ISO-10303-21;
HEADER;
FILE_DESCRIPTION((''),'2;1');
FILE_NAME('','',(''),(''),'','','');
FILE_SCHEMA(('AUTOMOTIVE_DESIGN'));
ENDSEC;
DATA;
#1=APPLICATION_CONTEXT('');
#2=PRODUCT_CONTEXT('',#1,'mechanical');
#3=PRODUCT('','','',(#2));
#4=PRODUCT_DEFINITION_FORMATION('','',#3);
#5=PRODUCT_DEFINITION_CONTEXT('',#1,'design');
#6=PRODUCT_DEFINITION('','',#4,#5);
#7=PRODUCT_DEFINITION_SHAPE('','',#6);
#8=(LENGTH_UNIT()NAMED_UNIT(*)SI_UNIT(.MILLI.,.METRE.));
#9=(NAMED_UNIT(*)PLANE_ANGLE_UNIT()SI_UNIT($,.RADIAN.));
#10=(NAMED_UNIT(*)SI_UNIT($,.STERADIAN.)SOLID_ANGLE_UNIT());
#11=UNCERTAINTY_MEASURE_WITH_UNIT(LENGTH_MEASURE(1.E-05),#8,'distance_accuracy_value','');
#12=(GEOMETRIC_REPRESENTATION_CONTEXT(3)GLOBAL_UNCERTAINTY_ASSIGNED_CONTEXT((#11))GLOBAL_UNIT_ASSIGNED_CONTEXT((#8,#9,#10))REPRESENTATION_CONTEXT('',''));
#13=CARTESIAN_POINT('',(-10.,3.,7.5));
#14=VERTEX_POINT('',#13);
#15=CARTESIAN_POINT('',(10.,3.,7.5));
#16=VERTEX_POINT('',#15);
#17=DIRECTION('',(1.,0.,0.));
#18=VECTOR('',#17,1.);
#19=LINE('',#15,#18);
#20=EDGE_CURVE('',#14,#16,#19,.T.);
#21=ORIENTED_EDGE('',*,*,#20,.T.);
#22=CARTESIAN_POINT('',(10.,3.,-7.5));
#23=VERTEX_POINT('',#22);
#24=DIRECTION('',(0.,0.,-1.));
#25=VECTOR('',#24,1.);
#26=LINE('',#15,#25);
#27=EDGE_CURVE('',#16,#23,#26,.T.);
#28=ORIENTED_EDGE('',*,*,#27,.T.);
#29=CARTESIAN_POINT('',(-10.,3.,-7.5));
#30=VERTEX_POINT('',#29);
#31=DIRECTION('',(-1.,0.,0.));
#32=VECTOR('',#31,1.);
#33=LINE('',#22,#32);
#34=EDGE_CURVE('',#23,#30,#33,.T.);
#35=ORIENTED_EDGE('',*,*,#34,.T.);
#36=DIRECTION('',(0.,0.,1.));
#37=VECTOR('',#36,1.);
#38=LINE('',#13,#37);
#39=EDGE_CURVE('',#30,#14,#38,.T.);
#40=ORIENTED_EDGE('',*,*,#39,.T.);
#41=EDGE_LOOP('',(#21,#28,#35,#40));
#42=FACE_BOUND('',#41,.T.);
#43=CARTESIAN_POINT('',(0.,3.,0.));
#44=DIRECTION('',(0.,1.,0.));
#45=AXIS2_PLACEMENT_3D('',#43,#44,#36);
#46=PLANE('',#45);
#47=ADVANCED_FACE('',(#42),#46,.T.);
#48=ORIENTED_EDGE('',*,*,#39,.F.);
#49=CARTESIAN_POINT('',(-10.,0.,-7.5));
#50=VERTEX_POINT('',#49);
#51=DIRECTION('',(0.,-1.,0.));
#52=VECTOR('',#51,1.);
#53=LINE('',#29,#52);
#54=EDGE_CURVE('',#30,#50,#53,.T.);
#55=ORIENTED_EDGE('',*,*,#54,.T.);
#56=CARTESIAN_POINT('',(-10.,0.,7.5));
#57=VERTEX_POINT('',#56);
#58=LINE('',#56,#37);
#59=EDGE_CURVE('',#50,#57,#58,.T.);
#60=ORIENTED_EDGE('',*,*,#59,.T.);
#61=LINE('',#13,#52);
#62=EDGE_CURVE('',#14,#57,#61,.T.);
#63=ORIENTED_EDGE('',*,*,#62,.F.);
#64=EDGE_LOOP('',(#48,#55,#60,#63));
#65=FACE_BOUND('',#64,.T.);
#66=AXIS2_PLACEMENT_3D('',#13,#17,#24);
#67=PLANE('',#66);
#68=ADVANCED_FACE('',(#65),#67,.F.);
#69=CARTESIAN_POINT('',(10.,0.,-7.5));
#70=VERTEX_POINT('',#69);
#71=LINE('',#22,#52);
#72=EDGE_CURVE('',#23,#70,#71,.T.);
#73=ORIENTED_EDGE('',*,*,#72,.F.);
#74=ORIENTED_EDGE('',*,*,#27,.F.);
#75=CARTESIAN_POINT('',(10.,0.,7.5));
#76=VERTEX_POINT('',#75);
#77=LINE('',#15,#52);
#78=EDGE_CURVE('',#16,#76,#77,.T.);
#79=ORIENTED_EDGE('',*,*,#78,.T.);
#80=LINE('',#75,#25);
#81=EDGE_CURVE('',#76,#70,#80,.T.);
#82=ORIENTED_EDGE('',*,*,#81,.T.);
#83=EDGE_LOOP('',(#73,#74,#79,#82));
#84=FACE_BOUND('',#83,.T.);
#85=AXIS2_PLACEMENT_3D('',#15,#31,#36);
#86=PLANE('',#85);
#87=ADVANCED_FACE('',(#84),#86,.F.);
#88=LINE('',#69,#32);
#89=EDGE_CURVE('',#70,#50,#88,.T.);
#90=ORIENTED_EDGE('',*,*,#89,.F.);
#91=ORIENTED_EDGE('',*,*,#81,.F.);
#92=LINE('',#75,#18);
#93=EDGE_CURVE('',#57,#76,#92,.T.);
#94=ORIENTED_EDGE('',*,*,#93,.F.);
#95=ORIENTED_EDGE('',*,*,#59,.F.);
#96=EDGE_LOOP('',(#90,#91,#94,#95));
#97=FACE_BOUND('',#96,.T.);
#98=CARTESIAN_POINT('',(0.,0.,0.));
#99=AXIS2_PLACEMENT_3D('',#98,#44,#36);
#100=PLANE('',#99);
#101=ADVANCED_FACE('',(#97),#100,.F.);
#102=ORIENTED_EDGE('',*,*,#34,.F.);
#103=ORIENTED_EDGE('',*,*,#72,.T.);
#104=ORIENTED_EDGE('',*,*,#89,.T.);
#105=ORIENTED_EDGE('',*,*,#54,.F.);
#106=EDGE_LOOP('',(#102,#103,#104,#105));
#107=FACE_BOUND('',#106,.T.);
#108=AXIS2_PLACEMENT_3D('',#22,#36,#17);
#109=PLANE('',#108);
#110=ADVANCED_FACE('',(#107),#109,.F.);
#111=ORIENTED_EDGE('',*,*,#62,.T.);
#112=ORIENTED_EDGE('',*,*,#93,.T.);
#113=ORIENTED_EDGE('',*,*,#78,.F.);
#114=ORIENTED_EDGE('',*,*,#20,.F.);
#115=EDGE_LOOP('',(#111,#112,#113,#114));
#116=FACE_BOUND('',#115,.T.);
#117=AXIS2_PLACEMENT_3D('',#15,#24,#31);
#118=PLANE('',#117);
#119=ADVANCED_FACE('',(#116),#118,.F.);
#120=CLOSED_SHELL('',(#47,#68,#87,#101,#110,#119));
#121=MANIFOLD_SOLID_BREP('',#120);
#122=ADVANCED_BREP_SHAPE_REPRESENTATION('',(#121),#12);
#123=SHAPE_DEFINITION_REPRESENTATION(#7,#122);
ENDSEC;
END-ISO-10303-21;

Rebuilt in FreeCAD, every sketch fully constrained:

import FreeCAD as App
import Part
import Sketcher
Q = App.Units.Quantity


def add_polygon(sketch, points):
    """Adds a closed chain of lines whose ends are joined by coincident constraints."""
    first, n = sketch.GeometryCount, len(points)
    for a, b in zip(points, points[1:] + points[:1]):
        sketch.addGeometry(Part.LineSegment(App.Vector(*a, 0), App.Vector(*b, 0)), False)
    for i in range(n):
        sketch.addConstraint(Sketcher.Constraint("Coincident", first + i, 2, first + (i + 1) % n, 1))

doc = App.newDocument("Part")
body = doc.addObject("PartDesign::Body", "Body")

sketch1 = doc.addObject("Sketcher::SketchObject", "Sketch")
body.addObject(sketch1)
sketch1.AttachmentSupport = (doc.XZ_Plane, [""])
sketch1.MapMode = "FlatFace"
add_polygon(sketch1, [(-10, -8), (-10, 8), (10, 8), (10, -8)])
sketch1.addConstraint(Sketcher.Constraint("Vertical", 0))
sketch1.addConstraint(Sketcher.Constraint("Horizontal", 1))
sketch1.addConstraint(Sketcher.Constraint("Vertical", 2))
sketch1.addConstraint(Sketcher.Constraint("Horizontal", 3))
sketch1.addConstraint(Sketcher.Constraint("Symmetric", 0, 2, 2, 2, -1, 1))
sketch1.addConstraint(Sketcher.Constraint("DistanceX", 1, 1, 1, 2, Q("20 mm")))
sketch1.addConstraint(Sketcher.Constraint("DistanceY", 0, 1, 0, 2, Q("15 mm")))
pad1 = doc.addObject("PartDesign::Pad", "Pad")
body.addObject(pad1)
pad1.Profile = sketch1
pad1.Length = 3
pad1.Reversed = True

doc.recompute()
